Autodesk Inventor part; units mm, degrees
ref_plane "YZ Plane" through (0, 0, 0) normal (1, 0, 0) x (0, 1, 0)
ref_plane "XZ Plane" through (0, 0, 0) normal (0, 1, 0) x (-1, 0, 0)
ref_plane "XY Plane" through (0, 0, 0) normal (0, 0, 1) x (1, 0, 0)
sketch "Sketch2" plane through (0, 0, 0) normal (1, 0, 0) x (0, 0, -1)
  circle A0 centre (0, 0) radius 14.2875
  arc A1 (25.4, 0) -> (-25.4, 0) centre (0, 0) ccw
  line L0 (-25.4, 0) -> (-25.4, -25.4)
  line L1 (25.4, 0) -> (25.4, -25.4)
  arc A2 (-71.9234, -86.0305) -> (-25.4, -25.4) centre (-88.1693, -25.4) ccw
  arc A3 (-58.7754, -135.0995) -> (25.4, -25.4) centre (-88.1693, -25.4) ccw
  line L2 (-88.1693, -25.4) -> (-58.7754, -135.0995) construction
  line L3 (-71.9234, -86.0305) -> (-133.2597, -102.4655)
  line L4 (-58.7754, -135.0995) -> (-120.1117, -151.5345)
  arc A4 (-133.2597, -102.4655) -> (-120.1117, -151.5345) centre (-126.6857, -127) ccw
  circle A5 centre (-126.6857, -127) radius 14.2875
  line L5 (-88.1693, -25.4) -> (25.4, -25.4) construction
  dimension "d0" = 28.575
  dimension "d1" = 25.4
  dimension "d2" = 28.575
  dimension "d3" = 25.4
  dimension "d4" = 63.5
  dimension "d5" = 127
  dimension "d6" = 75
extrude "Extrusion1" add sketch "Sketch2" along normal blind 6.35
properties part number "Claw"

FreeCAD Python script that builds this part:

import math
import FreeCAD as App
import Part
import Sketcher
Q = App.Units.Quantity

doc = App.newDocument("Part")
body = doc.addObject("PartDesign::Body", "Body")

# Sketch on YZ plane
sketch1 = body.newObject("Sketcher::SketchObject", "Sketch")
sketch1.AttachmentSupport = (doc.getObject("YZ_Plane"), [""])
sketch1.MapMode = "FlatFace"
sketch1.addGeometry([
    Part.LineSegment(App.Vector(-25, -25, 0), App.Vector(0, -25, 0)),  # 0
    Part.ArcOfCircle(Part.Circle(App.Vector(0, 0, 0), App.Vector(0, 0, 1), 25), math.radians(-90), math.radians(90)),  # 1
    Part.LineSegment(App.Vector(0, 25, 0), App.Vector(-25, 25, 0)),  # 2
    Part.ArcOfCircle(Part.Circle(App.Vector(-25, 88, 0), App.Vector(0, 0, 1), 63), math.radians(-165), math.radians(-90)),  # 3
    Part.LineSegment(App.Vector(-86, 72, 0), App.Vector(-102, 133, 0)),  # 4
    Part.ArcOfCircle(Part.Circle(App.Vector(-127, 127, 0), App.Vector(0, 0, 1), 25), math.radians(15), math.radians(195)),  # 5
    Part.LineSegment(App.Vector(-152, 120, 0), App.Vector(-135, 59, 0)),  # 6
    Part.ArcOfCircle(Part.Circle(App.Vector(-25, 88, 0), App.Vector(0, 0, 1), 114), math.radians(-165), math.radians(-90)),  # 7
    Part.Circle(App.Vector(-127, 127, 0), App.Vector(0, 0, 1), 14),  # 8
    Part.Circle(App.Vector(0, 0, 0), App.Vector(0, 0, 1), 14),  # 9
], False)
sketch1.addConstraint([
    Sketcher.Constraint("Tangent", 0, 2, 1, 1),
    Sketcher.Constraint("Tangent", 1, 2, 2, 1),
    Sketcher.Constraint("Tangent", 2, 2, 3, 2),
    Sketcher.Constraint("Tangent", 3, 1, 4, 1),
    Sketcher.Constraint("Tangent", 4, 2, 5, 1),
    Sketcher.Constraint("Tangent", 5, 2, 6, 1),
    Sketcher.Constraint("Tangent", 6, 2, 7, 1),
    Sketcher.Constraint("Tangent", 7, 2, 0, 1),
    Sketcher.Constraint("Horizontal", 0),
    Sketcher.Constraint("Horizontal", 2),
    Sketcher.Constraint("Coincident", 1, 3, -1, 1),
    Sketcher.Constraint("Coincident", 9, 3, -1, 1),
    Sketcher.Constraint("Coincident", 7, 3, 3, 3),
    Sketcher.Constraint("Coincident", 8, 3, 5, 3),
    Sketcher.Constraint("Equal", 1, 5),
    Sketcher.Constraint("Equal", 8, 9),
    Sketcher.Constraint("Radius", 1, Q("1 in")),
    Sketcher.Constraint("DistanceX", 0, 1, 0, 2, Q("1 in")),
    Sketcher.Constraint("Diameter", 8, Q("1.125 in")),
    Sketcher.Constraint("DistanceX", 5, 3, -1, 1, Q("5 in")),
    Sketcher.Constraint("Angle", 6, Q("-75 deg")),
    Sketcher.Constraint("Distance", 4, Q("2.5 in")),
])
pad1 = body.newObject("PartDesign::Pad", "Pad")
pad1.Profile = sketch1
pad1.Length = Q("0.25 in")

doc.recompute()
